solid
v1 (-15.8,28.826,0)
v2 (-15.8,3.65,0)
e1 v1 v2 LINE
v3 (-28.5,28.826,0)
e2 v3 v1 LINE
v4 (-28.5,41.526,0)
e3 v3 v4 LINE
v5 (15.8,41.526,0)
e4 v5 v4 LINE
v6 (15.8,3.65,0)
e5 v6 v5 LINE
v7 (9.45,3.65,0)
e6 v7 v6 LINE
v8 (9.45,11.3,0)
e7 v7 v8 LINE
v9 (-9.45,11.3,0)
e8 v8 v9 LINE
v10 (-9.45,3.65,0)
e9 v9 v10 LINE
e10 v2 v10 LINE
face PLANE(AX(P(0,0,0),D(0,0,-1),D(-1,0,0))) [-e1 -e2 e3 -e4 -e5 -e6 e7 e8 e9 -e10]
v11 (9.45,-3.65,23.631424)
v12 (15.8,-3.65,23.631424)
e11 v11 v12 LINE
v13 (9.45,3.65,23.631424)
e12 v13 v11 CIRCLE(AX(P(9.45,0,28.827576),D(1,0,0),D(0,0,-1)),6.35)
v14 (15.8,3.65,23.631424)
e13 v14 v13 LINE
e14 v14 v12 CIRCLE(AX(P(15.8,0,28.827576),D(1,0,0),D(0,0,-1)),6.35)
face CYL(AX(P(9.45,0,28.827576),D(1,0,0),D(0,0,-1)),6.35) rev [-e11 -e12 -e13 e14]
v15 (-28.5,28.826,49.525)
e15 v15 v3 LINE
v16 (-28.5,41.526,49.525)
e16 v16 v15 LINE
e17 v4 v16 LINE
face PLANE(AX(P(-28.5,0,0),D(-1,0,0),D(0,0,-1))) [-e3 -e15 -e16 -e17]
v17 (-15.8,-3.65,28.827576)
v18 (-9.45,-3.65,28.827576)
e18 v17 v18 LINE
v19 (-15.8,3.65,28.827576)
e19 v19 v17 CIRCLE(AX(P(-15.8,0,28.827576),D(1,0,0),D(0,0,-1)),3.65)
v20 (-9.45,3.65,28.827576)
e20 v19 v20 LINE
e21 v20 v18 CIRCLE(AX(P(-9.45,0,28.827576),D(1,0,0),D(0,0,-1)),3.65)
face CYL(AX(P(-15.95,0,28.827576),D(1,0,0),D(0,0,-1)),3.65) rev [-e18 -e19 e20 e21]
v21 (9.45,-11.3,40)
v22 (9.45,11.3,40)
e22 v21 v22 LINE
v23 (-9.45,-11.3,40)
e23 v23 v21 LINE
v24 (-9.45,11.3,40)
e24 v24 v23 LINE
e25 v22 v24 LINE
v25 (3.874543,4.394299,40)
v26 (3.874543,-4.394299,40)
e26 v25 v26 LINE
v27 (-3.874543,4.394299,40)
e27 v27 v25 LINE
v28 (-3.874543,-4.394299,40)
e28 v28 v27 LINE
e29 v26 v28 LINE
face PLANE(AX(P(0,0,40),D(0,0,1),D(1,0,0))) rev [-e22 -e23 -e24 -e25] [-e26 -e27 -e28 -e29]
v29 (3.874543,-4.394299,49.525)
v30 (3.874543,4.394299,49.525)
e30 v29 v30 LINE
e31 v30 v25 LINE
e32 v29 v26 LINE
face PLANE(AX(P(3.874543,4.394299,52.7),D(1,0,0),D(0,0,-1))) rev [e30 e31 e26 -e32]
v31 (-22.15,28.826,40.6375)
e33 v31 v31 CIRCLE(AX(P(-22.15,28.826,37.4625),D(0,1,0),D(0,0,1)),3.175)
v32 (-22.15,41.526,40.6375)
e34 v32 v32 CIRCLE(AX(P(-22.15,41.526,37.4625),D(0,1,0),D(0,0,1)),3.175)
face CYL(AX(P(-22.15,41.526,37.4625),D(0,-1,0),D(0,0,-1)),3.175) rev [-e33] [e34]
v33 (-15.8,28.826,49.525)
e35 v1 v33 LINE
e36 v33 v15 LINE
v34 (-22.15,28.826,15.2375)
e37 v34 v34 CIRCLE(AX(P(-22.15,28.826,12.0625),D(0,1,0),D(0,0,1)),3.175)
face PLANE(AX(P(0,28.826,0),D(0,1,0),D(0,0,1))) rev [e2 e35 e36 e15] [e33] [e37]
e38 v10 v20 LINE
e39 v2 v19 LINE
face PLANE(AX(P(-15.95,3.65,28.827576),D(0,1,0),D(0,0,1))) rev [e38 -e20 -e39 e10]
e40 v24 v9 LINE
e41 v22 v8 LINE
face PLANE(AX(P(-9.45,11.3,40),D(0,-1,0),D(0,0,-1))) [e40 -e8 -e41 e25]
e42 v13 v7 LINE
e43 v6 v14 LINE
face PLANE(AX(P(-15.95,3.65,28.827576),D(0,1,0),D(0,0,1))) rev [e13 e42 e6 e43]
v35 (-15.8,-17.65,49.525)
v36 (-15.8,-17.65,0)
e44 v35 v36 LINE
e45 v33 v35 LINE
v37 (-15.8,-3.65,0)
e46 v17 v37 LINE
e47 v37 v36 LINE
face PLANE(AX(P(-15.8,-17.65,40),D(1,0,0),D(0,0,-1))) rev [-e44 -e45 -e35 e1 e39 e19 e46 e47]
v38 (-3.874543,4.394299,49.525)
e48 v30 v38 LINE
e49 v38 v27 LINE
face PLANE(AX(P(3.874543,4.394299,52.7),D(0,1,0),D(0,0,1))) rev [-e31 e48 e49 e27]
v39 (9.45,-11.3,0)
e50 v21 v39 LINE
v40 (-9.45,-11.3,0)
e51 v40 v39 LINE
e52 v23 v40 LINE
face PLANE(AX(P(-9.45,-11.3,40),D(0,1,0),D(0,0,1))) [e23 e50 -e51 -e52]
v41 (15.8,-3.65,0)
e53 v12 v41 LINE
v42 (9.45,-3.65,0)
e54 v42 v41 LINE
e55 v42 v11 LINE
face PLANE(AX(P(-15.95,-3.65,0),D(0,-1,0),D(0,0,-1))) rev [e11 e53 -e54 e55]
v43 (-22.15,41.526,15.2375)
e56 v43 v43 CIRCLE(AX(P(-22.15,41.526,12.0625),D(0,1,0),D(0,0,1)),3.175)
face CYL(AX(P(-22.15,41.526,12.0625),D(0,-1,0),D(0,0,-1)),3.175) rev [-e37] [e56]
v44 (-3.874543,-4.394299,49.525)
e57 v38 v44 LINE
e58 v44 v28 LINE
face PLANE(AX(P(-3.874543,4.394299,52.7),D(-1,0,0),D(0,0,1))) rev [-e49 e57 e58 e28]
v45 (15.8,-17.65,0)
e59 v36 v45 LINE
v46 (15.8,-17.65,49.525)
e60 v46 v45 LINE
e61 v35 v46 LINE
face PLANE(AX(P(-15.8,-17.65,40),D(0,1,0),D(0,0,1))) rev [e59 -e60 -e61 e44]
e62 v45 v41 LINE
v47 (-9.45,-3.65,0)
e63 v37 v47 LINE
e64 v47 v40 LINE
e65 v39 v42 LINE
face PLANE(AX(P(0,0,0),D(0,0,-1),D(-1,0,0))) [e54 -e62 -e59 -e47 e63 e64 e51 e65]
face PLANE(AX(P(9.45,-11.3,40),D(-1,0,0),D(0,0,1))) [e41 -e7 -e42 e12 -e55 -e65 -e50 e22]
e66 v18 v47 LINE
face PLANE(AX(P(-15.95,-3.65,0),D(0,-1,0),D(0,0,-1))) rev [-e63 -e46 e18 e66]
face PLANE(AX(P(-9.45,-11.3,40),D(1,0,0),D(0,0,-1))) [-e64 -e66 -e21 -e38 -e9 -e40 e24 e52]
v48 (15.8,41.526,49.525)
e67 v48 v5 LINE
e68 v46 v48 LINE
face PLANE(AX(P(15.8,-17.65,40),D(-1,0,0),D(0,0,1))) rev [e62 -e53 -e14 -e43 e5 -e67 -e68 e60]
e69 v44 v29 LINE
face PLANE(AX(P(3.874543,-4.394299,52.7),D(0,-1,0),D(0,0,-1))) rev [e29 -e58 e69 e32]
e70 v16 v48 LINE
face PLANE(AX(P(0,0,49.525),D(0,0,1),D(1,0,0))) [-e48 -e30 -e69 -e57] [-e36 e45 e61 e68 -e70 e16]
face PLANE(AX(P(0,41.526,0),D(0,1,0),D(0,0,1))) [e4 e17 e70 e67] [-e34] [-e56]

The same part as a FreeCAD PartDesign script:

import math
import FreeCAD as App
import Part
import Sketcher

V = App.Vector
Q = App.Units.Quantity

doc = App.newDocument("Part")
params = doc.addObject("Spreadsheet::Sheet", "Params")
for row, (alias, value) in enumerate([
    ("sketch1_width", "31.6 mm"),
    ("sketch1_width2", "18.9 mm"),
    ("sketch1_height", "35.3 mm"),
    ("sketch1_height2", "22.6 mm"),
    ("pad1_length", "40 mm"),
    ("sketch2_width", "31.6 mm"),
    ("sketch2_height", "35.3 mm"),
    ("pad2_length", "9.525 mm"),
    ("pocket1_length", "12.7 mm"),
    ("sketch4_radius", "3.65 mm"),
    ("pocket2_length", "31.75 mm"),
    ("sketch5_width", "31.6 mm"),
    ("pad3_length", "11.176 mm"),
    ("sketch6_width", "6.35 mm"),
    ("pad4_length", "57.15 mm"),
    ("sketch7_diameter", "6.35 mm"),
    ("pocket3_length", "6.35 mm"),
    ("sketch8_width", "12.85 mm"),
    ("pocket4_length", "6.35 mm"),
    ("sketch9_width", "12.85 mm"),
    ("pocket5_length", "6.35 mm"),
    ("sketch10_diameter", "12.7 mm"),
    ("pocket6_length", "6.35 mm"),
    ("sketch11_diameter", "6.35 mm"),
    ("sketch11_width", "44.3 mm"),
    ("pad5_length", "12.7 mm"),
    ("sketch12_diameter", "6.35 mm"),
    ("sketch12_width", "12.7 mm"),
    ("pocket7_length", "6.35 mm"),
], start=1):
    params.set(f"A{row}", alias)
    params.set(f"B{row}", "=" + value)
    params.setAlias(f"B{row}", alias)

body = doc.addObject("PartDesign::Body", "Body")

sketch1 = body.newObject("Sketcher::SketchObject", "Sketch")
sketch1.AttachmentSupport = (doc.getObject("XY_Plane"), [""])
sketch1.MapMode = "FlatFace"
sketch1.addGeometry([
    Part.LineSegment(V(-15.8, 17.65, 0), V(-15.8, -17.65, 0)),
    Part.LineSegment(V(-15.8, -17.65, 0), V(15.8, -17.65, 0)),
    Part.LineSegment(V(15.8, -17.65, 0), V(15.8, 17.65, 0)),
    Part.LineSegment(V(15.8, 17.65, 0), V(-15.8, 17.65, 0)),
    Part.LineSegment(V(9.45, -11.3, 0), V(-9.45, -11.3, 0)),
    Part.LineSegment(V(-9.45, -11.3, 0), V(-9.45, 11.3, 0)),
    Part.LineSegment(V(-9.45, 11.3, 0), V(9.45, 11.3, 0)),
    Part.LineSegment(V(9.45, 11.3, 0), V(9.45, -11.3, 0)),
], False)
sketch1.addConstraint([
    Sketcher.Constraint("Coincident", 0, 2, 1, 1),
    Sketcher.Constraint("Coincident", 1, 2, 2, 1),
    Sketcher.Constraint("Coincident", 2, 2, 3, 1),
    Sketcher.Constraint("Coincident", 3, 2, 0, 1),
    Sketcher.Constraint("Coincident", 4, 2, 5, 1),
    Sketcher.Constraint("Coincident", 5, 2, 6, 1),
    Sketcher.Constraint("Coincident", 6, 2, 7, 1),
    Sketcher.Constraint("Coincident", 7, 2, 4, 1),
    Sketcher.Constraint("Vertical", 0),
    Sketcher.Constraint("Horizontal", 1),
    Sketcher.Constraint("Vertical", 2),
    Sketcher.Constraint("Horizontal", 3),
    Sketcher.Constraint("Horizontal", 4),
    Sketcher.Constraint("Vertical", 5),
    Sketcher.Constraint("Horizontal", 6),
    Sketcher.Constraint("Vertical", 7),
    Sketcher.Constraint("Symmetric", 0, 2, 2, 2, -1, 1),
    Sketcher.Constraint("Symmetric", 4, 2, 6, 2, -1, 1),
    Sketcher.Constraint("DistanceX", 1, 1, 1, 2, Q("31.6 mm")),
    Sketcher.Constraint("DistanceX", 4, 2, 4, 1, Q("18.9 mm")),
    Sketcher.Constraint("DistanceY", 0, 2, 0, 1, Q("35.3 mm")),
    Sketcher.Constraint("DistanceY", 5, 1, 5, 2, Q("22.6 mm")),
])
sketch1.setExpression("Constraints[18]", "Params.sketch1_width")
sketch1.setExpression("Constraints[19]", "Params.sketch1_width2")
sketch1.setExpression("Constraints[20]", "Params.sketch1_height")
sketch1.setExpression("Constraints[21]", "Params.sketch1_height2")
pad1 = body.newObject("PartDesign::Pad", "Pad")
pad1.Profile = sketch1
pad1.setExpression("Length", "Params.pad1_length")

sketch2 = body.newObject("Sketcher::SketchObject", "Sketch001")
sketch2.AttachmentSupport = (doc.getObject("XY_Plane"), [""])
sketch2.MapMode = "FlatFace"
sketch2.AttachmentOffset = App.Placement(V(0, 0, 40), App.Rotation())
sketch2.addGeometry([
    Part.LineSegment(V(-15.8, 17.65, 0), V(-15.8, -17.65, 0)),
    Part.LineSegment(V(-15.8, -17.65, 0), V(15.8, -17.65, 0)),
    Part.LineSegment(V(15.8, -17.65, 0), V(15.8, 17.65, 0)),
    Part.LineSegment(V(15.8, 17.65, 0), V(-15.8, 17.65, 0)),
], False)
sketch2.addConstraint([
    Sketcher.Constraint("Coincident", 0, 2, 1, 1),
    Sketcher.Constraint("Coincident", 1, 2, 2, 1),
    Sketcher.Constraint("Coincident", 2, 2, 3, 1),
    Sketcher.Constraint("Coincident", 3, 2, 0, 1),
    Sketcher.Constraint("Vertical", 0),
    Sketcher.Constraint("Horizontal", 1),
    Sketcher.Constraint("Vertical", 2),
    Sketcher.Constraint("Horizontal", 3),
    Sketcher.Constraint("Symmetric", 0, 2, 2, 2, -1, 1),
    Sketcher.Constraint("DistanceX", 1, 1, 1, 2, Q("31.6 mm")),
    Sketcher.Constraint("DistanceY", 0, 2, 0, 1, Q("35.3 mm")),
])
sketch2.setExpression("Constraints[9]", "Params.sketch2_width")
sketch2.setExpression("Constraints[10]", "Params.sketch2_height")
pad2 = body.newObject("PartDesign::Pad", "Pad001")
pad2.Profile = sketch2
pad2.setExpression("Length", "Params.pad2_length")

sketch3 = body.newObject("Sketcher::SketchObject", "Sketch002")
sketch3.AttachmentSupport = (doc.getObject("XY_Plane"), [""])
sketch3.MapMode = "FlatFace"
sketch3.AttachmentOffset = App.Placement(V(0, 0, 40), App.Rotation())
sketch3.addGeometry([
    Part.LineSegment(V(3.874543, 4.394299, 0), V(3.874543, -4.394299, 0)),
    Part.LineSegment(V(3.874543, -4.394299, 0), V(-3.874543, -4.394299, 0)),
    Part.LineSegment(V(-3.874543, -4.394299, 0), V(-3.874543, 4.394299, 0)),
    Part.LineSegment(V(-3.874543, 4.394299, 0), V(3.874543, 4.394299, 0)),
], False)
sketch3.addConstraint([
    Sketcher.Constraint("Coincident", 0, 2, 1, 1),
    Sketcher.Constraint("Coincident", 1, 2, 2, 1),
    Sketcher.Constraint("Coincident", 2, 2, 3, 1),
    Sketcher.Constraint("Coincident", 3, 2, 0, 1),
    Sketcher.Constraint("Vertical", 0),
    Sketcher.Constraint("Horizontal", 1),
    Sketcher.Constraint("Vertical", 2),
    Sketcher.Constraint("Horizontal", 3),
    Sketcher.Constraint("Symmetric", 0, 2, 2, 2, -1, 1),
    Sketcher.Constraint("DistanceY", 0, 2, 0, 1, Q("8.788599 mm")),
    Sketcher.Constraint("DistanceX", 1, 2, 1, 1, Q("7.749087 mm")),
])
pocket1 = body.newObject("PartDesign::Pocket", "Pocket")
pocket1.Profile = sketch3
pocket1.setExpression("Length", "Params.pocket1_length")
pocket1.Reversed = True

sketch4 = body.newObject("Sketcher::SketchObject", "Sketch003")
sketch4.AttachmentSupport = (doc.getObject("YZ_Plane"), [""])
sketch4.MapMode = "FlatFace"
sketch4.AttachmentOffset = App.Placement(V(0, 0, 15.8), App.Rotation())
sketch4.addGeometry([
    Part.LineSegment(V(3.65, 0, 0), V(3.65, 28.827576, 0)),
    Part.ArcOfCircle(Part.Circle(V(0, 28.827576, 0), V(0, 0, 1), 3.65), math.radians(0), math.radians(180)),
    Part.LineSegment(V(-3.65, 28.827576, 0), V(-3.65, 0, 0)),
    Part.LineSegment(V(-3.65, 0, 0), V(3.65, 0, 0)),
], False)
sketch4.addConstraint([
    Sketcher.Constraint("Tangent", 0, 2, 1, 1),
    Sketcher.Constraint("Tangent", 1, 2, 2, 1),
    Sketcher.Constraint("Coincident", 2, 2, 3, 1),
    Sketcher.Constraint("Coincident", 3, 2, 0, 1),
    Sketcher.Constraint("Vertical", 0),
    Sketcher.Constraint("Vertical", 2),
    Sketcher.Constraint("Horizontal", 3),
    Sketcher.Constraint("Symmetric", 2, 2, 3, 2, -1, 1),
    Sketcher.Constraint("Radius", 1, Q("3.65 mm")),
    Sketcher.Constraint("DistanceY", 0, 1, 0, 2, Q("28.827576 mm")),
])
sketch4.setExpression("Constraints[8]", "Params.sketch4_radius")
pocket2 = body.newObject("PartDesign::Pocket", "Pocket001")
pocket2.Profile = sketch4
pocket2.setExpression("Length", "Params.pocket2_length")

sketch5 = body.newObject("Sketcher::SketchObject", "Sketch004")
sketch5.AttachmentSupport = (doc.getObject("XZ_Plane"), [""])
sketch5.MapMode = "FlatFace"
sketch5.AttachmentOffset = App.Placement(V(0, 0, -17.65), App.Rotation())
sketch5.addGeometry([
    Part.LineSegment(V(-15.8, 0, 0), V(-15.8, 49.525, 0)),
    Part.LineSegment(V(-15.8, 49.525, 0), V(15.8, 49.525, 0)),
    Part.LineSegment(V(15.8, 49.525, 0), V(15.8, 0, 0)),
    Part.LineSegment(V(15.8, 0, 0), V(-15.8, 0, 0)),
], False)
sketch5.addConstraint([
    Sketcher.Constraint("Coincident", 0, 2, 1, 1),
    Sketcher.Constraint("Coincident", 1, 2, 2, 1),
    Sketcher.Constraint("Coincident", 2, 2, 3, 1),
    Sketcher.Constraint("Coincident", 3, 2, 0, 1),
    Sketcher.Constraint("Vertical", 0),
    Sketcher.Constraint("Horizontal", 1),
    Sketcher.Constraint("Vertical", 2),
    Sketcher.Constraint("Horizontal", 3),
    Sketcher.Constraint("Symmetric", 2, 2, 3, 2, -1, 1),
    Sketcher.Constraint("DistanceX", 1, 1, 1, 2, Q("31.6 mm")),
    Sketcher.Constraint("DistanceY", 0, 1, 0, 2, Q("49.525 mm")),
])
sketch5.setExpression("Constraints[9]", "Params.sketch5_width")
pad3 = body.newObject("PartDesign::Pad", "Pad002")
pad3.Profile = sketch5
pad3.setExpression("Length", "Params.pad3_length")
pad3.Reversed = True

sketch6 = body.newObject("Sketcher::SketchObject", "Sketch005")
sketch6.AttachmentSupport = (doc.getObject("YZ_Plane"), [""])
sketch6.MapMode = "FlatFace"
sketch6.AttachmentOffset = App.Placement(V(0, 0, -28.65), App.Rotation())
sketch6.addGeometry([
    Part.LineSegment(V(28.826, 49.525, 0), V(22.476, 49.525, 0)),
    Part.LineSegment(V(22.476, 49.525, 0), V(22.476, 0, 0)),
    Part.LineSegment(V(22.476, 0, 0), V(28.826, 0, 0)),
    Part.LineSegment(V(28.826, 0, 0), V(28.826, 49.525, 0)),
], False)
sketch6.addConstraint([
    Sketcher.Constraint("Coincident", 0, 2, 1, 1),
    Sketcher.Constraint("Coincident", 1, 2, 2, 1),
    Sketcher.Constraint("Coincident", 2, 2, 3, 1),
    Sketcher.Constraint("Coincident", 3, 2, 0, 1),
    Sketcher.Constraint("Horizontal", 0),
    Sketcher.Constraint("Vertical", 1),
    Sketcher.Constraint("Horizontal", 2),
    Sketcher.Constraint("Vertical", 3),
    Sketcher.Constraint("PointOnObject", 1, 2, -1),
    Sketcher.Constraint("DistanceX", 0, 2, 0, 1, Q("6.35 mm")),
    Sketcher.Constraint("DistanceY", 1, 2, 1, 1, Q("49.525 mm")),
    Sketcher.Constraint("DistanceX", -1, 1, 0, 2, Q("22.476 mm")),
])
sketch6.setExpression("Constraints[9]", "Params.sketch6_width")
pad4 = body.newObject("PartDesign::Pad", "Pad003")
pad4.Profile = sketch6
pad4.setExpression("Length", "Params.pad4_length")

sketch7 = body.newObject("Sketcher::SketchObject", "Sketch006")
sketch7.AttachmentSupport = (doc.getObject("XZ_Plane"), [""])
sketch7.MapMode = "FlatFace"
sketch7.AttachmentOffset = App.Placement(V(0, 0, -22.476), App.Rotation())
sketch7.addGeometry([
    Part.Circle(V(-22.225, 24.7625, 0), V(0, 0, 1), 3.175),
    Part.Circle(V(22.15, 37.434572, 0), V(0, 0, 1), 3.175),
    Part.Circle(V(22.15, 12.034572, 0), V(0, 0, 1), 3.175),
], False)
sketch7.addConstraint([
    Sketcher.Constraint("Equal", 0, 1),
    Sketcher.Constraint("Equal", 1, 2),
    Sketcher.Constraint("Vertical", 1, 3, 2, 3),
    Sketcher.Constraint("Diameter", 0, Q("6.35 mm")),
    Sketcher.Constraint("DistanceY", 2, 3, 1, 3, Q("25.4 mm")),
    Sketcher.Constraint("DistanceX", -1, 1, 1, 3, Q("22.15 mm")),
    Sketcher.Constraint("DistanceX", 0, 3, -1, 1, Q("22.225 mm")),
    Sketcher.Constraint("DistanceY", -1, 1, 0, 3, Q("24.7625 mm")),
    Sketcher.Constraint("DistanceY", -1, 1, 1, 3, Q("37.434572 mm")),
])
sketch7.setExpression("Constraints[3]", "Params.sketch7_diameter")
pocket3 = body.newObject("PartDesign::Pocket", "Pocket002")
pocket3.Profile = sketch7
pocket3.setExpression("Length", "Params.pocket3_length")

sketch8 = body.newObject("Sketcher::SketchObject", "Sketch007")
sketch8.AttachmentSupport = (doc.getObject("XZ_Plane"), [""])
sketch8.MapMode = "FlatFace"
sketch8.AttachmentOffset = App.Placement(V(0, 0, -22.476), App.Rotation())
sketch8.addGeometry([
    Part.LineSegment(V(-28.65, 49.525, 0), V(-28.65, 0, 0)),
    Part.LineSegment(V(-28.65, 0, 0), V(-15.8, 0, 0)),
    Part.LineSegment(V(-15.8, 0, 0), V(-15.8, 49.525, 0)),
    Part.LineSegment(V(-15.8, 49.525, 0), V(-28.65, 49.525, 0)),
], False)
sketch8.addConstraint([
    Sketcher.Constraint("Coincident", 0, 2, 1, 1),
    Sketcher.Constraint("Coincident", 1, 2, 2, 1),
    Sketcher.Constraint("Coincident", 2, 2, 3, 1),
    Sketcher.Constraint("Coincident", 3, 2, 0, 1),
    Sketcher.Constraint("Vertical", 0),
    Sketcher.Constraint("Horizontal", 1),
    Sketcher.Constraint("Vertical", 2),
    Sketcher.Constraint("Horizontal", 3),
    Sketcher.Constraint("PointOnObject", 0, 2, -1),
    Sketcher.Constraint("DistanceX", 1, 1, 1, 2, Q("12.85 mm")),
    Sketcher.Constraint("DistanceX", 1, 2, -1, 1, Q("15.8 mm")),
    Sketcher.Constraint("DistanceY", 0, 2, 0, 1, Q("49.525 mm")),
])
sketch8.setExpression("Constraints[9]", "Params.sketch8_width")
pocket4 = body.newObject("PartDesign::Pocket", "Pocket003")
pocket4.Profile = sketch8
pocket4.setExpression("Length", "Params.pocket4_length")
doc.recompute()

mirrored = body.newObject("PartDesign::Mirrored", "Mirrored")
mirrored.Originals = [pad4]
mirrored.MirrorPlane = (doc.getObject("YZ_Plane"), [""])
body.Tip = mirrored

sketch9 = body.newObject("Sketcher::SketchObject", "Sketch008")
sketch9.AttachmentSupport = (doc.getObject("XZ_Plane"), [""])
sketch9.MapMode = "FlatFace"
sketch9.AttachmentOffset = App.Placement(V(0, 0, -28.826), App.Rotation())
sketch9.addGeometry([
    Part.Circle(V(-22.15, 37.4625, 0), V(0, 0, 1), 3.429),
    Part.Circle(V(-22.15, 12.0625, 0), V(0, 0, 1), 3.429),
    Part.LineSegment(V(15.8, 0, 0), V(15.8, 49.525, 0)),
    Part.LineSegment(V(15.8, 49.525, 0), V(28.65, 49.525, 0)),
    Part.LineSegment(V(28.65, 49.525, 0), V(28.65, 0, 0)),
    Part.LineSegment(V(28.65, 0, 0), V(15.8, 0, 0)),
], False)
sketch9.addConstraint([
    Sketcher.Constraint("Coincident", 2, 2, 3, 1),
    Sketcher.Constraint("Coincident", 3, 2, 4, 1),
    Sketcher.Constraint("Coincident", 4, 2, 5, 1),
    Sketcher.Constraint("Coincident", 5, 2, 2, 1),
    Sketcher.Constraint("Vertical", 2),
    Sketcher.Constraint("Horizontal", 3),
    Sketcher.Constraint("Vertical", 4),
    Sketcher.Constraint("Horizontal", 5),
    Sketcher.Constraint("Equal", 0, 1),
    Sketcher.Constraint("PointOnObject", 4, 2, -1),
    Sketcher.Constraint("Vertical", 0, 3, 1, 3),
    Sketcher.Constraint("Diameter", 0, Q("6.858 mm")),
    Sketcher.Constraint("DistanceX", 3, 1, 3, 2, Q("12.85 mm")),
    Sketcher.Constraint("DistanceX", -1, 1, 2, 2, Q("15.8 mm")),
    Sketcher.Constraint("DistanceY", 1, 3, 0, 3, Q("25.4 mm")),
    Sketcher.Constraint("DistanceX", 0, 3, 3, 2, Q("50.8 mm")),
    Sketcher.Constraint("DistanceY", 2, 1, 2, 2, Q("49.525 mm")),
    Sketcher.Constraint("DistanceY", -1, 1, 0, 3, Q("37.4625 mm")),
])
sketch9.setExpression("Constraints[12]", "Params.sketch9_width")
pocket5 = body.newObject("PartDesign::Pocket", "Pocket004")
pocket5.Profile = sketch9
pocket5.setExpression("Length", "Params.pocket5_length")
pocket5.Reversed = True

sketch10 = body.newObject("Sketcher::SketchObject", "Sketch009")
sketch10.AttachmentSupport = (doc.getObject("YZ_Plane"), [""])
sketch10.MapMode = "FlatFace"
sketch10.AttachmentOffset = App.Placement(V(0, 0, 15.8), App.Rotation())
sketch10.addGeometry(Part.Circle(V(0, 28.827576, 0), V(0, 0, 1), 6.35), False)
sketch10.addConstraint([
    Sketcher.Constraint("PointOnObject", 0, 3, -2),
    Sketcher.Constraint("Diameter", 0, Q("12.7 mm")),
    Sketcher.Constraint("DistanceY", -1, 1, 0, 3, Q("28.827576 mm")),
])
sketch10.setExpression("Constraints[1]", "Params.sketch10_diameter")
pocket6 = body.newObject("PartDesign::Pocket", "Pocket005")
pocket6.Profile = sketch10
pocket6.setExpression("Length", "Params.pocket6_length")

sketch11 = body.newObject("Sketcher::SketchObject", "Sketch010")
sketch11.AttachmentSupport = (doc.getObject("XZ_Plane"), [""])
sketch11.MapMode = "FlatFace"
sketch11.AttachmentOffset = App.Placement(V(0, 0, -28.826), App.Rotation())
sketch11.addGeometry([
    Part.LineSegment(V(-28.5, 0, 0), V(-28.5, 49.525, 0)),
    Part.LineSegment(V(-28.5, 49.525, 0), V(15.8, 49.525, 0)),
    Part.LineSegment(V(15.8, 49.525, 0), V(15.8, 0, 0)),
    Part.LineSegment(V(15.8, 0, 0), V(-28.5, 0, 0)),
    Part.Circle(V(-22.15, 37.4625, 0), V(0, 0, 1), 3.175),
    Part.Circle(V(-22.15, 12.0625, 0), V(0, 0, 1), 3.175),
], False)
sketch11.addConstraint([
    Sketcher.Constraint("Coincident", 0, 2, 1, 1),
    Sketcher.Constraint("Coincident", 1, 2, 2, 1),
    Sketcher.Constraint("Coincident", 2, 2, 3, 1),
    Sketcher.Constraint("Coincident", 3, 2, 0, 1),
    Sketcher.Constraint("Vertical", 0),
    Sketcher.Constraint("Horizontal", 1),
    Sketcher.Constraint("Vertical", 2),
    Sketcher.Constraint("Horizontal", 3),
    Sketcher.Constraint("Equal", 4, 5),
    Sketcher.Constraint("PointOnObject", 2, 2, -1),
    Sketcher.Constraint("Vertical", 4, 3, 5, 3),
    Sketcher.Constraint("Diameter", 4, Q("6.35 mm")),
    Sketcher.Constraint("DistanceX", 1, 1, 1, 2, Q("44.3 mm")),
    Sketcher.Constraint("DistanceX", 0, 2, -1, 1, Q("28.5 mm")),
    Sketcher.Constraint("DistanceY", 5, 3, 4, 3, Q("25.4 mm")),
    Sketcher.Constraint("DistanceY", 0, 1, 0, 2, Q("49.525 mm")),
    Sketcher.Constraint("DistanceX", 4, 3, -1, 1, Q("22.15 mm")),
    Sketcher.Constraint("DistanceY", -1, 1, 4, 3, Q("37.4625 mm")),
])
sketch11.setExpression("Constraints[11]", "Params.sketch11_diameter")
sketch11.setExpression("Constraints[12]", "Params.sketch11_width")
pad5 = body.newObject("PartDesign::Pad", "Pad004")
pad5.Profile = sketch11
pad5.setExpression("Length", "Params.pad5_length")
pad5.Reversed = True

sketch12 = body.newObject("Sketcher::SketchObject", "Sketch011")
sketch12.AttachmentSupport = (doc.getObject("XZ_Plane"), [""])
sketch12.MapMode = "FlatFace"
sketch12.AttachmentOffset = App.Placement(V(0, 0, -22.476), App.Rotation())
sketch12.addGeometry([
    Part.LineSegment(V(-28.5, 49.525, 0), V(-28.5, 0, 0)),
    Part.LineSegment(V(-28.5, 0, 0), V(-15.8, 0, 0)),
    Part.LineSegment(V(-15.8, 0, 0), V(-15.8, 49.525, 0)),
    Part.LineSegment(V(-15.8, 49.525, 0), V(-28.5, 49.525, 0)),
    Part.Circle(V(-22.15, 12.0625, 0), V(0, 0, 1), 3.175),
    Part.Circle(V(-22.15, 37.4625, 0), V(0, 0, 1), 3.175),
], False)
sketch12.addConstraint([
    Sketcher.Constraint("Coincident", 0, 2, 1, 1),
    Sketcher.Constraint("Coincident", 1, 2, 2, 1),
    Sketcher.Constraint("Coincident", 2, 2, 3, 1),
    Sketcher.Constraint("Coincident", 3, 2, 0, 1),
    Sketcher.Constraint("Vertical", 0),
    Sketcher.Constraint("Horizontal", 1),
    Sketcher.Constraint("Vertical", 2),
    Sketcher.Constraint("Horizontal", 3),
    Sketcher.Constraint("Equal", 4, 5),
    Sketcher.Constraint("PointOnObject", 0, 2, -1),
    Sketcher.Constraint("Vertical", 4, 3, 5, 3),
    Sketcher.Constraint("Diameter", 4, Q("6.35 mm")),
    Sketcher.Constraint("DistanceX", 1, 1, 1, 2, Q("12.7 mm")),
    Sketcher.Constraint("DistanceX", 0, 2, -1, 1, Q("28.5 mm")),
    Sketcher.Constraint("DistanceY", 4, 3, 5, 3, Q("25.4 mm")),
    Sketcher.Constraint("DistanceY", 0, 2, 0, 1, Q("49.525 mm")),
    Sketcher.Constraint("DistanceX", 4, 3, -1, 1, Q("22.15 mm")),
    Sketcher.Constraint("DistanceY", -1, 1, 4, 3, Q("12.0625 mm")),
])
sketch12.setExpression("Constraints[11]", "Params.sketch12_diameter")
sketch12.setExpression("Constraints[12]", "Params.sketch12_width")
pocket7 = body.newObject("PartDesign::Pocket", "Pocket006")
pocket7.Profile = sketch12
pocket7.setExpression("Length", "Params.pocket7_length")

doc.recompute()
